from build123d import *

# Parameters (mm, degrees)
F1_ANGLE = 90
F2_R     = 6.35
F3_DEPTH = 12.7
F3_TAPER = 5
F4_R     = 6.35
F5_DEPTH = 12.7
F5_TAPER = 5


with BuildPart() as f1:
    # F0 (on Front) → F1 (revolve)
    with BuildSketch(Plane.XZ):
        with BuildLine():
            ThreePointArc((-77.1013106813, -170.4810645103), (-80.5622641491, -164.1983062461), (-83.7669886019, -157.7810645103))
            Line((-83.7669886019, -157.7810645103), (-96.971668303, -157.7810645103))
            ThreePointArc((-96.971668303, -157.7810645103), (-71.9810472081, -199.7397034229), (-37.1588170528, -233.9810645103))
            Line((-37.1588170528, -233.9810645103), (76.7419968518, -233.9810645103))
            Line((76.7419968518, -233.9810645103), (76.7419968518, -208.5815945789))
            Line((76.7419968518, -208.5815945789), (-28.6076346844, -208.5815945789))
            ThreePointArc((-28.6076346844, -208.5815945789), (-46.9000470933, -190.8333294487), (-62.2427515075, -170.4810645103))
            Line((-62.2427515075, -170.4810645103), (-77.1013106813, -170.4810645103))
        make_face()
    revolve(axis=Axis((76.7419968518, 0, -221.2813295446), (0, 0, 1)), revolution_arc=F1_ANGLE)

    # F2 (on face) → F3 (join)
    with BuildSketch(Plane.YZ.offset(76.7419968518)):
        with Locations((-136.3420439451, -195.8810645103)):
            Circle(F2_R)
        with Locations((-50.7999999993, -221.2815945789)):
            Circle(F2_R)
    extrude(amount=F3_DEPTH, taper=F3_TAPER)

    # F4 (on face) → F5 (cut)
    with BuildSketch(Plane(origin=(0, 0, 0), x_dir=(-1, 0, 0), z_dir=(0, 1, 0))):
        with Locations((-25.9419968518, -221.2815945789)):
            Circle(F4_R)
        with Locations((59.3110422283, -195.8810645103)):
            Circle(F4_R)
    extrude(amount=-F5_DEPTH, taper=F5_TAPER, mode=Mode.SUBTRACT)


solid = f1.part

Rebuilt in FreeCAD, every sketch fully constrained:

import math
import FreeCAD as App
import Part
import Sketcher
Q = App.Units.Quantity

doc = App.newDocument("Part")
params = doc.addObject("Spreadsheet::Sheet", "Params")
for row, (alias, value) in enumerate([
    ("sketch1_radius", "7 in"),
    ("sketch1_radius2", "6.5 in"),
    ("revolution_angle", "90 deg"),
    ("sketch2_diameter", "0.5 in"),
    ("pad1_length", "0.5 in"),
    ("pad1_taper", "-5 deg"),
    ("sketch3_diameter", "0.5 in"),
    ("pocket1_length", "0.5 in"),
    ("pocket1_taper", "-5 deg"),
], start=1):
    params.set(f"A{row}", alias)
    params.set(f"B{row}", "=" + value)
    params.setAlias(f"B{row}", alias)

body = doc.addObject("PartDesign::Body", "Body")

sketch1 = doc.addObject("Sketcher::SketchObject", "Sketch")
body.addObject(sketch1)
sketch1.AttachmentSupport = (doc.XZ_Plane, [""])
sketch1.MapMode = "FlatFace"
sketch1.addGeometry(Part.ArcOfCircle(Part.Circle(App.Vector(76.870778, -81.568546, 0), App.Vector(0, 0, 1), 177.8), math.radians(-154.618602), math.radians(-149.995342)), False)
sketch1.addGeometry(Part.LineSegment(App.Vector(-83.766989, -157.781065, 0), App.Vector(-96.971668, -157.781065, 0)), False)
sketch1.addGeometry(Part.ArcOfCircle(Part.Circle(App.Vector(78.124101, -81.915335, 0), App.Vector(0, 0, 1), 190.824887), math.radians(-156.573815), math.radians(-127.166218)), False)
sketch1.addGeometry(Part.LineSegment(App.Vector(-37.158817, -233.981065, 0), App.Vector(76.741997, -233.981065, 0)), False)
sketch1.addGeometry(Part.LineSegment(App.Vector(76.741997, -233.981065, 0), App.Vector(76.741997, -208.581595, 0)), False)
sketch1.addGeometry(Part.LineSegment(App.Vector(76.741997, -208.581595, 0), App.Vector(-28.607635, -208.581595, 0)), False)
sketch1.addGeometry(Part.ArcOfCircle(Part.Circle(App.Vector(76.870778, -81.568546, 0), App.Vector(0, 0, 1), 165.1), math.radians(-147.415874), math.radians(-129.70805)), False)
sketch1.addGeometry(Part.LineSegment(App.Vector(-62.242752, -170.481065, 0), App.Vector(-77.101311, -170.481065, 0)), False)
sketch1.addGeometry(Part.LineSegment(App.Vector(76.741997, -233.981065, 0), App.Vector(76.741997, -81.568546, 0)), True)
sketch1.addConstraint(Sketcher.Constraint("Coincident", 0, 1, 1, 1))
sketch1.addConstraint(Sketcher.Constraint("Coincident", 1, 2, 2, 1))
sketch1.addConstraint(Sketcher.Constraint("Coincident", 2, 2, 3, 1))
sketch1.addConstraint(Sketcher.Constraint("Coincident", 3, 2, 4, 1))
sketch1.addConstraint(Sketcher.Constraint("Coincident", 4, 2, 5, 1))
sketch1.addConstraint(Sketcher.Constraint("Coincident", 5, 2, 6, 2))
sketch1.addConstraint(Sketcher.Constraint("Coincident", 6, 1, 7, 1))
sketch1.addConstraint(Sketcher.Constraint("Coincident", 7, 2, 0, 2))
sketch1.addConstraint(Sketcher.Constraint("Horizontal", 1))
sketch1.addConstraint(Sketcher.Constraint("Horizontal", 3))
sketch1.addConstraint(Sketcher.Constraint("Vertical", 4))
sketch1.addConstraint(Sketcher.Constraint("Horizontal", 5))
sketch1.addConstraint(Sketcher.Constraint("Horizontal", 7))
sketch1.addConstraint(Sketcher.Constraint("Vertical", 8))
sketch1.addConstraint(Sketcher.Constraint("Coincident", 6, 3, 0, 3))
sketch1.addConstraint(Sketcher.Constraint("Coincident", 8, 1, 3, 2))
sketch1.addConstraint(Sketcher.Constraint("Horizontal", 6, 3, 8, 2))
sketch1.addConstraint(Sketcher.Constraint("Radius", 0, Q("7 in")))
sketch1.addConstraint(Sketcher.Constraint("Radius", 6, Q("6.5 in")))
sketch1.addConstraint(Sketcher.Constraint("DistanceY", 2, 2, 0, 1, Q("3 in")))
sketch1.addConstraint(Sketcher.Constraint("DistanceY", 6, 1, 0, 1, Q("0.5 in")))
sketch1.addConstraint(Sketcher.Constraint("Radius", 2, Q("190.824887 mm")))
sketch1.addConstraint(Sketcher.Constraint("DistanceX", 7, 2, 5, 2, Q("1.9091998 in")))
sketch1.addConstraint(Sketcher.Constraint("DistanceX", 1, 2, 1, 1, Q("13.20468 mm")))
sketch1.addConstraint(Sketcher.Constraint("DistanceX", 5, 2, 5, 1, Q("105.349632 mm")))
sketch1.addConstraint(Sketcher.Constraint("DistanceX", 7, 2, 7, 1, Q("14.858559 mm")))
sketch1.addConstraint(Sketcher.Constraint("DistanceX", -1, 1, 2, 3, Q("78.124101 mm")))
sketch1.addConstraint(Sketcher.Constraint("DistanceX", 3, 1, 3, 2, Q("113.900814 mm")))
sketch1.addConstraint(Sketcher.Constraint("DistanceY", 0, 3, -1, 1, Q("81.568546 mm")))
sketch1.setExpression("Constraints[17]", "Params.sketch1_radius")
sketch1.setExpression("Constraints[18]", "Params.sketch1_radius2")
revolution = doc.addObject("PartDesign::Revolution", "Revolution")
body.addObject(revolution)
revolution.Profile = sketch1
revolution.ReferenceAxis = (sketch1, ["Axis0"])
revolution.setExpression("Angle", "Params.revolution_angle")

sketch2 = doc.addObject("Sketcher::SketchObject", "Sketch001")
body.addObject(sketch2)
sketch2.AttachmentSupport = (doc.YZ_Plane, [""])
sketch2.MapMode = "FlatFace"
sketch2.AttachmentOffset = App.Placement(App.Vector(0, 0, 76.741997), App.Rotation())
sketch2.addGeometry(Part.Circle(App.Vector(-136.342044, -195.881065, 0), App.Vector(0, 0, 1), 6.35), False)
sketch2.addGeometry(Part.Circle(App.Vector(-50.8, -221.281595, 0), App.Vector(0, 0, 1), 6.35), False)
sketch2.addConstraint(Sketcher.Constraint("Equal", 0, 1))
sketch2.addConstraint(Sketcher.Constraint("Diameter", 0, Q("0.5 in")))
sketch2.addConstraint(Sketcher.Constraint("DistanceX", 1, 3, -1, 1, Q("2 in")))
sketch2.addConstraint(Sketcher.Constraint("DistanceY", 1, 3, 0, 3, Q("25.40053 mm")))
sketch2.addConstraint(Sketcher.Constraint("DistanceX", 0, 3, -1, 1, Q("136.342044 mm")))
sketch2.addConstraint(Sketcher.Constraint("DistanceY", 0, 3, -1, 1, Q("195.881065 mm")))
sketch2.setExpression("Constraints[1]", "Params.sketch2_diameter")
pad1 = doc.addObject("PartDesign::Pad", "Pad")
body.addObject(pad1)
pad1.Profile = sketch2
pad1.setExpression("Length", "Params.pad1_length")
pad1.setExpression("TaperAngle", "Params.pad1_taper")

sketch3 = doc.addObject("Sketcher::SketchObject", "Sketch002")
body.addObject(sketch3)
sketch3.AttachmentSupport = (doc.XZ_Plane, [""])
sketch3.MapMode = "FlatFace"
sketch3.addGeometry(Part.Circle(App.Vector(25.941997, -221.281595, 0), App.Vector(0, 0, 1), 6.35), False)
sketch3.addGeometry(Part.Circle(App.Vector(-59.311042, -195.881065, 0), App.Vector(0, 0, 1), 6.35), False)
sketch3.addConstraint(Sketcher.Constraint("Equal", 0, 1))
sketch3.addConstraint(Sketcher.Constraint("Diameter", 0, Q("0.5 in")))
sketch3.addConstraint(Sketcher.Constraint("DistanceX", 1, 3, 0, 3, Q("85.253039 mm")))
sketch3.addConstraint(Sketcher.Constraint("DistanceY", 0, 3, 1, 3, Q("25.40053 mm")))
sketch3.addConstraint(Sketcher.Constraint("DistanceX", -1, 1, 0, 3, Q("25.941997 mm")))
sketch3.addConstraint(Sketcher.Constraint("DistanceY", 0, 3, -1, 1, Q("221.281595 mm")))
sketch3.setExpression("Constraints[1]", "Params.sketch3_diameter")
pocket1 = doc.addObject("PartDesign::Pocket", "Pocket")
body.addObject(pocket1)
pocket1.Profile = sketch3
pocket1.setExpression("Length", "Params.pocket1_length")
pocket1.Reversed = True
pocket1.setExpression("TaperAngle", "Params.pocket1_taper")

doc.recompute()
